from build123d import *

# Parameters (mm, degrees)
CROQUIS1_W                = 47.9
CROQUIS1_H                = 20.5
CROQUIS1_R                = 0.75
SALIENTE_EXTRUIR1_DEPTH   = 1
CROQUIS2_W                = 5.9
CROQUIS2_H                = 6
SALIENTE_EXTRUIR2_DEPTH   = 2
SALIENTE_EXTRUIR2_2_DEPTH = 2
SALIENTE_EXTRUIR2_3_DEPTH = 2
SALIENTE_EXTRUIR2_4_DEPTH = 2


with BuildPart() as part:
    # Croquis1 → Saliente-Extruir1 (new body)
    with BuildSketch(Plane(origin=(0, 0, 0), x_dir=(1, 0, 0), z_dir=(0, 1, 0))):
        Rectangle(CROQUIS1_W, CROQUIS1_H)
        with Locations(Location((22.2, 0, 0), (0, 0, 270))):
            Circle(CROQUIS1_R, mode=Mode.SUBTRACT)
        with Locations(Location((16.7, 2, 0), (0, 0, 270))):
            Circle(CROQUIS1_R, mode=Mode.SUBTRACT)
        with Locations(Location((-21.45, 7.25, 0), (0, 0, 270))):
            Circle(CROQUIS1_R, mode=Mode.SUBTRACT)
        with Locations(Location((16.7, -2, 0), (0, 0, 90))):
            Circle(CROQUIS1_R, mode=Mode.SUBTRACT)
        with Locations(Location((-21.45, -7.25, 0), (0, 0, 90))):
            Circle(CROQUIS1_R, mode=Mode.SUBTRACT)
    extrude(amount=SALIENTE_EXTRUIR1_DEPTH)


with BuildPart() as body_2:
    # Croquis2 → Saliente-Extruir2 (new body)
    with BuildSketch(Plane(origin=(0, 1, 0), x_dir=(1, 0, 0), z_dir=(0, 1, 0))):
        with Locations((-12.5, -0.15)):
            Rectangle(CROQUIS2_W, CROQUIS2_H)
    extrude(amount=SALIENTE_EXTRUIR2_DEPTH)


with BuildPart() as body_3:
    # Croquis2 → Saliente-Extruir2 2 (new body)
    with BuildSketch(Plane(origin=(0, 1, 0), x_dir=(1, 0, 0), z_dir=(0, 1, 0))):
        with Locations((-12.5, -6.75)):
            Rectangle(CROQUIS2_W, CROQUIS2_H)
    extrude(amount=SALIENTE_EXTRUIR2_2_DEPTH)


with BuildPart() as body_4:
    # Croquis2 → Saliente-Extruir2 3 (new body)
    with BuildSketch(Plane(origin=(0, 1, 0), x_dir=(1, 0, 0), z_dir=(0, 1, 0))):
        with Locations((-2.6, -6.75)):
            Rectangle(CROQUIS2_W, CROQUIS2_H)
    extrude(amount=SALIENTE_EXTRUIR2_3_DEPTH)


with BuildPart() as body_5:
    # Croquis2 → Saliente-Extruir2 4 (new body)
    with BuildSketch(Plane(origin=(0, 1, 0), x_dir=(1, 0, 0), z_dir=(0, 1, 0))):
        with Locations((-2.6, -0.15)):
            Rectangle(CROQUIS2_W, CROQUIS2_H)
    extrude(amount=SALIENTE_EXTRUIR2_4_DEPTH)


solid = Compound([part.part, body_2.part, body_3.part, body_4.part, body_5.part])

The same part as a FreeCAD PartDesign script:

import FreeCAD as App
import Part
import Sketcher
from FreeCAD import Vector


def add_polygon(sketch, points):
    """Adds a closed chain of lines whose ends are joined by coincident constraints."""
    first, n = sketch.GeometryCount, len(points)
    for a, b in zip(points, points[1:] + points[:1]):
        sketch.addGeometry(Part.LineSegment(App.Vector(*a, 0), App.Vector(*b, 0)), False)
    for i in range(n):
        sketch.addConstraint(Sketcher.Constraint("Coincident", first + i, 2, first + (i + 1) % n, 1))

doc = App.newDocument("Part")
body = doc.addObject("PartDesign::Body", "Body")

# Sketch on XZ plane
sketch1 = body.newObject("Sketcher::SketchObject", "Sketch")
sketch1.AttachmentSupport = (doc.getObject("XZ_Plane"), [""])
sketch1.MapMode = "FlatFace"
add_polygon(sketch1, [(-23.9, -10.2), (-23.9, 10.2), (23.9, 10.2), (23.9, -10.2)])  # lines 0-3
sketch1.addGeometry(Part.Circle(Vector(-21.4, 7.2, 0), Vector(0, 0, 1), 0.8), False)  # 4
sketch1.addGeometry(Part.Circle(Vector(16.7, 2, 0), Vector(0, 0, 1), 0.8), False)  # 5
sketch1.addGeometry(Part.Circle(Vector(-21.4, -7.2, 0), Vector(0, 0, 1), 0.8), False)  # 6
sketch1.addGeometry(Part.Circle(Vector(22.2, 0, 0), Vector(0, 0, 1), 0.8), False)  # 7
sketch1.addGeometry(Part.Circle(Vector(16.7, -2, 0), Vector(0, 0, 1), 0.8), False)  # 8
sketch1.addConstraint(Sketcher.Constraint("Vertical", 0))
sketch1.addConstraint(Sketcher.Constraint("Horizontal", 1))
sketch1.addConstraint(Sketcher.Constraint("Vertical", 2))
sketch1.addConstraint(Sketcher.Constraint("Horizontal", 3))
sketch1.addConstraint(Sketcher.Constraint("Equal", 4, 5))
sketch1.addConstraint(Sketcher.Constraint("Equal", 5, 6))
sketch1.addConstraint(Sketcher.Constraint("Equal", 6, 7))
sketch1.addConstraint(Sketcher.Constraint("Equal", 7, 8))
sketch1.addConstraint(Sketcher.Constraint("Symmetric", 0, 2, 2, 2, -1, 1))
sketch1.addConstraint(Sketcher.Constraint("Symmetric", 4, 3, 6, 3, -1))
sketch1.addConstraint(Sketcher.Constraint("Symmetric", 5, 3, 8, 3, -1))
sketch1.addConstraint(Sketcher.Constraint("PointOnObject", 7, 3, -1))
sketch1.addConstraint(Sketcher.Constraint("Diameter", 4, 1.5))
sketch1.addConstraint(Sketcher.Constraint("DistanceX", 1, 1, 1, 2, 47.9))
sketch1.addConstraint(Sketcher.Constraint("DistanceY", 0, 1, 0, 2, 20.5))
sketch1.addConstraint(Sketcher.Constraint("DistanceY", -1, 1, 5, 3, 2.0))
sketch1.addConstraint(Sketcher.Constraint("DistanceY", 4, 3, 0, 2, 3.0))
sketch1.addConstraint(Sketcher.Constraint("DistanceX", -1, 1, 5, 3, 16.7))
sketch1.addConstraint(Sketcher.Constraint("DistanceX", -1, 1, 7, 3, 22.2))
sketch1.addConstraint(Sketcher.Constraint("DistanceX", 0, 2, 4, 3, 2.5))
pad1 = body.newObject("PartDesign::Pad", "Pad")
pad1.Profile = sketch1
pad1.Length = 1
pad1.Reversed = True
body2 = doc.addObject("PartDesign::Body", "Body001")

# Sketch on XZ plane
sketch2 = body2.newObject("Sketcher::SketchObject", "Sketch001")
sketch2.AttachmentSupport = (doc.getObject("XZ_Plane001"), [""])
sketch2.MapMode = "FlatFace"
sketch2.AttachmentOffset = App.Placement(Vector(0, 0, -1), App.Rotation())
add_polygon(sketch2, [(-15, -3), (-15, 3), (-10, 3), (-10, -3)])  # lines 0-3
sketch2.addConstraint(Sketcher.Constraint("Vertical", 0))
sketch2.addConstraint(Sketcher.Constraint("Horizontal", 1))
sketch2.addConstraint(Sketcher.Constraint("Vertical", 2))
sketch2.addConstraint(Sketcher.Constraint("Horizontal", 3))
sketch2.addConstraint(Sketcher.Constraint("DistanceY", 0, 1, 0, 2, 6.0))
sketch2.addConstraint(Sketcher.Constraint("DistanceX", 1, 1, 1, 2, 5.9))
sketch2.addConstraint(Sketcher.Constraint("DistanceX", 0, 2, -1, 1, 15.45))
sketch2.addConstraint(Sketcher.Constraint("DistanceY", -1, 1, 0, 2, 3.15))
pad2 = body2.newObject("PartDesign::Pad", "Pad001")
pad2.Profile = sketch2
pad2.Length = 2
pad2.Reversed = True
body3 = doc.addObject("PartDesign::Body", "Body002")

# Sketch on XZ plane
sketch3 = body3.newObject("Sketcher::SketchObject", "Sketch002")
sketch3.AttachmentSupport = (doc.getObject("XZ_Plane002"), [""])
sketch3.MapMode = "FlatFace"
sketch3.AttachmentOffset = App.Placement(Vector(0, 0, -1), App.Rotation())
add_polygon(sketch3, [(-15, 4), (-15, 10), (-10, 10), (-10, 4)])  # lines 0-3
sketch3.addConstraint(Sketcher.Constraint("Vertical", 0))
sketch3.addConstraint(Sketcher.Constraint("Horizontal", 1))
sketch3.addConstraint(Sketcher.Constraint("Vertical", 2))
sketch3.addConstraint(Sketcher.Constraint("Horizontal", 3))
sketch3.addConstraint(Sketcher.Constraint("DistanceY", 0, 1, 0, 2, 6.0))
sketch3.addConstraint(Sketcher.Constraint("DistanceX", 1, 1, 1, 2, 5.9))
sketch3.addConstraint(Sketcher.Constraint("DistanceX", 0, 2, -1, 1, 15.45))
sketch3.addConstraint(Sketcher.Constraint("DistanceY", -1, 1, 0, 2, 9.75))
pad3 = body3.newObject("PartDesign::Pad", "Pad002")
pad3.Profile = sketch3
pad3.Length = 2
pad3.Reversed = True
body4 = doc.addObject("PartDesign::Body", "Body003")

# Sketch on XZ plane
sketch4 = body4.newObject("Sketcher::SketchObject", "Sketch003")
sketch4.AttachmentSupport = (doc.getObject("XZ_Plane003"), [""])
sketch4.MapMode = "FlatFace"
sketch4.AttachmentOffset = App.Placement(Vector(0, 0, -1), App.Rotation())
add_polygon(sketch4, [(-6, 4), (-6, 10), (0, 10), (0, 4)])  # lines 0-3
sketch4.addConstraint(Sketcher.Constraint("Vertical", 0))
sketch4.addConstraint(Sketcher.Constraint("Horizontal", 1))
sketch4.addConstraint(Sketcher.Constraint("Vertical", 2))
sketch4.addConstraint(Sketcher.Constraint("Horizontal", 3))
sketch4.addConstraint(Sketcher.Constraint("DistanceY", 0, 1, 0, 2, 6.0))
sketch4.addConstraint(Sketcher.Constraint("DistanceX", 1, 1, 1, 2, 5.9))
sketch4.addConstraint(Sketcher.Constraint("DistanceX", 0, 2, -1, 1, 5.55))
sketch4.addConstraint(Sketcher.Constraint("DistanceY", -1, 1, 0, 2, 9.75))
pad4 = body4.newObject("PartDesign::Pad", "Pad003")
pad4.Profile = sketch4
pad4.Length = 2
pad4.Reversed = True
body5 = doc.addObject("PartDesign::Body", "Body004")

# Sketch on XZ plane
sketch5 = body5.newObject("Sketcher::SketchObject", "Sketch004")
sketch5.AttachmentSupport = (doc.getObject("XZ_Plane004"), [""])
sketch5.MapMode = "FlatFace"
sketch5.AttachmentOffset = App.Placement(Vector(0, 0, -1), App.Rotation())
add_polygon(sketch5, [(-6, -3), (-6, 3), (0, 3), (0, -3)])  # lines 0-3
sketch5.addConstraint(Sketcher.Constraint("Vertical", 0))
sketch5.addConstraint(Sketcher.Constraint("Horizontal", 1))
sketch5.addConstraint(Sketcher.Constraint("Vertical", 2))
sketch5.addConstraint(Sketcher.Constraint("Horizontal", 3))
sketch5.addConstraint(Sketcher.Constraint("DistanceY", 0, 1, 0, 2, 6.0))
sketch5.addConstraint(Sketcher.Constraint("DistanceX", 1, 1, 1, 2, 5.9))
sketch5.addConstraint(Sketcher.Constraint("DistanceX", 0, 2, -1, 1, 5.55))
sketch5.addConstraint(Sketcher.Constraint("DistanceY", -1, 1, 0, 2, 3.15))
pad5 = body5.newObject("PartDesign::Pad", "Pad004")
pad5.Profile = sketch5
pad5.Length = 2
pad5.Reversed = True

doc.recompute()
